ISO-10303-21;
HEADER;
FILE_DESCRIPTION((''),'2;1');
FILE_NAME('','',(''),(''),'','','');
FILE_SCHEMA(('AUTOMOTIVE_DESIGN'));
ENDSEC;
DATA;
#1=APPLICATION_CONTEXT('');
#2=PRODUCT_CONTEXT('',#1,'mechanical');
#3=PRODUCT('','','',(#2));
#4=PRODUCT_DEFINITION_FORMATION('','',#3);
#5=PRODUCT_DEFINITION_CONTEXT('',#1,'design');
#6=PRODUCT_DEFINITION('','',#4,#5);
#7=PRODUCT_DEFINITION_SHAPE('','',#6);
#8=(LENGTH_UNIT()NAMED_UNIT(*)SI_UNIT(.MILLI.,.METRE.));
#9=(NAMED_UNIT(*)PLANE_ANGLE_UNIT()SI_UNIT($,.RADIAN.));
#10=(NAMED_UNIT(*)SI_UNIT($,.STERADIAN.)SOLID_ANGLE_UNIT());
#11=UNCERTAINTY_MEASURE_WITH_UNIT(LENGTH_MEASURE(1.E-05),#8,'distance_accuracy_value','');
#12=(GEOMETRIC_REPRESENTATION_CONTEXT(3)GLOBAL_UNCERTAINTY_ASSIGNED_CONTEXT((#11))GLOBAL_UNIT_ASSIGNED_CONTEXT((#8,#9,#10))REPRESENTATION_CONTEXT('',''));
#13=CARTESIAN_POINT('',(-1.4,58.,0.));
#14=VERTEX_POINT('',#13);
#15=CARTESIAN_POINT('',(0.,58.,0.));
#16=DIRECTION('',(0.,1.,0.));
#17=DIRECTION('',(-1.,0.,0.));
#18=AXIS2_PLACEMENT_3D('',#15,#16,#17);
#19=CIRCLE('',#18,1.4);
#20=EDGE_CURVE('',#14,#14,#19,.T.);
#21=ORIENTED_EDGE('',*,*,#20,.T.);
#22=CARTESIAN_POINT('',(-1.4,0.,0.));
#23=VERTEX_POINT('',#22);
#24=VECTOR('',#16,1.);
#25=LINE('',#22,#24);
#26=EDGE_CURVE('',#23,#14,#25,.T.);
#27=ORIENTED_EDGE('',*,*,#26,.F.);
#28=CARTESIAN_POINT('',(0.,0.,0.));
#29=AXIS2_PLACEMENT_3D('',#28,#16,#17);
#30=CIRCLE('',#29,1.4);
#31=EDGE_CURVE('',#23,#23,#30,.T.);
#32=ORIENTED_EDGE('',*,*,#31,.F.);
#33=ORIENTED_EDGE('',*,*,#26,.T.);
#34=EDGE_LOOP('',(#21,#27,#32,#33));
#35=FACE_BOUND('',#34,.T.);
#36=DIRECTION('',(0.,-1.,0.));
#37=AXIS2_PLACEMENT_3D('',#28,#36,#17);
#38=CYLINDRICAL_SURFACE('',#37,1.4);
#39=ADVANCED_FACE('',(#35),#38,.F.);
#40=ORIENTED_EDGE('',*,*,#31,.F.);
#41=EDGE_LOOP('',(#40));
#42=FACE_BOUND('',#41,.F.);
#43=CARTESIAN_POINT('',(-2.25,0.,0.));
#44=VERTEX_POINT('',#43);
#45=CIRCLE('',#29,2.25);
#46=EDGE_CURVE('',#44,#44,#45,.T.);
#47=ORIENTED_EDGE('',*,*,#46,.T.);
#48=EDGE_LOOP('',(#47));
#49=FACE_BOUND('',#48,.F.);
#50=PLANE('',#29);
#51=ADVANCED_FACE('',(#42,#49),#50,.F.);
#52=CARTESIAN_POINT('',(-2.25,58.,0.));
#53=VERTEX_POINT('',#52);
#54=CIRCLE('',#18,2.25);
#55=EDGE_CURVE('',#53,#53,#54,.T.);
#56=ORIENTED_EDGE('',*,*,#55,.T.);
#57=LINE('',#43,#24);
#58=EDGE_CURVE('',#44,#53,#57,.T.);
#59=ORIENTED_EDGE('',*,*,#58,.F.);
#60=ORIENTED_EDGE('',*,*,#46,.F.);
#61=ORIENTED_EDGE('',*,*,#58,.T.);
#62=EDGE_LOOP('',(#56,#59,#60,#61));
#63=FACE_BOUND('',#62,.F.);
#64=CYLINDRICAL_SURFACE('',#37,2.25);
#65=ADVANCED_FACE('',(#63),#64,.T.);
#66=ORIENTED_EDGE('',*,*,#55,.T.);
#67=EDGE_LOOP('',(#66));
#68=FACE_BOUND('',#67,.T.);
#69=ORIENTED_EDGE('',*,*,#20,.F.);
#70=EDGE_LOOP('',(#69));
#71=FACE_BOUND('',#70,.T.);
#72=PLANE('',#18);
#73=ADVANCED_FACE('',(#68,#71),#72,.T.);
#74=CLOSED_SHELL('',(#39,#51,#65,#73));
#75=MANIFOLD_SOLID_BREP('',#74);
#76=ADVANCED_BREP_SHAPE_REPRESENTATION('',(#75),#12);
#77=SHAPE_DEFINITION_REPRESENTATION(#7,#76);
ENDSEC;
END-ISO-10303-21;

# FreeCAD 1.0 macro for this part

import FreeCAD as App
import Part
import Sketcher

V = App.Vector
Q = App.Units.Quantity

doc = App.newDocument("Part")
body = doc.addObject("PartDesign::Body", "Body")

# Sketch on XZ plane
sketch1 = body.newObject("Sketcher::SketchObject", "Sketch")
sketch1.AttachmentSupport = (doc.getObject("XZ_Plane"), [""])
sketch1.MapMode = "FlatFace"
sketch1.addGeometry(Part.Circle(V(0, 0, 0), V(0, 0, 1), 2.25), False)
sketch1.addGeometry(Part.Circle(V(0, 0, 0), V(0, 0, 1), 1.4), False)
sketch1.addConstraint(Sketcher.Constraint("Coincident", 0, 3, -1, 1))
sketch1.addConstraint(Sketcher.Constraint("Coincident", 1, 3, -1, 1))
sketch1.addConstraint(Sketcher.Constraint("Diameter", 0, Q("4.5 mm")))
sketch1.addConstraint(Sketcher.Constraint("Diameter", 1, Q("2.8 mm")))
pad1 = body.newObject("PartDesign::Pad", "Pad")
pad1.Profile = sketch1
pad1.Length = 58
pad1.Reversed = True

doc.recompute()
